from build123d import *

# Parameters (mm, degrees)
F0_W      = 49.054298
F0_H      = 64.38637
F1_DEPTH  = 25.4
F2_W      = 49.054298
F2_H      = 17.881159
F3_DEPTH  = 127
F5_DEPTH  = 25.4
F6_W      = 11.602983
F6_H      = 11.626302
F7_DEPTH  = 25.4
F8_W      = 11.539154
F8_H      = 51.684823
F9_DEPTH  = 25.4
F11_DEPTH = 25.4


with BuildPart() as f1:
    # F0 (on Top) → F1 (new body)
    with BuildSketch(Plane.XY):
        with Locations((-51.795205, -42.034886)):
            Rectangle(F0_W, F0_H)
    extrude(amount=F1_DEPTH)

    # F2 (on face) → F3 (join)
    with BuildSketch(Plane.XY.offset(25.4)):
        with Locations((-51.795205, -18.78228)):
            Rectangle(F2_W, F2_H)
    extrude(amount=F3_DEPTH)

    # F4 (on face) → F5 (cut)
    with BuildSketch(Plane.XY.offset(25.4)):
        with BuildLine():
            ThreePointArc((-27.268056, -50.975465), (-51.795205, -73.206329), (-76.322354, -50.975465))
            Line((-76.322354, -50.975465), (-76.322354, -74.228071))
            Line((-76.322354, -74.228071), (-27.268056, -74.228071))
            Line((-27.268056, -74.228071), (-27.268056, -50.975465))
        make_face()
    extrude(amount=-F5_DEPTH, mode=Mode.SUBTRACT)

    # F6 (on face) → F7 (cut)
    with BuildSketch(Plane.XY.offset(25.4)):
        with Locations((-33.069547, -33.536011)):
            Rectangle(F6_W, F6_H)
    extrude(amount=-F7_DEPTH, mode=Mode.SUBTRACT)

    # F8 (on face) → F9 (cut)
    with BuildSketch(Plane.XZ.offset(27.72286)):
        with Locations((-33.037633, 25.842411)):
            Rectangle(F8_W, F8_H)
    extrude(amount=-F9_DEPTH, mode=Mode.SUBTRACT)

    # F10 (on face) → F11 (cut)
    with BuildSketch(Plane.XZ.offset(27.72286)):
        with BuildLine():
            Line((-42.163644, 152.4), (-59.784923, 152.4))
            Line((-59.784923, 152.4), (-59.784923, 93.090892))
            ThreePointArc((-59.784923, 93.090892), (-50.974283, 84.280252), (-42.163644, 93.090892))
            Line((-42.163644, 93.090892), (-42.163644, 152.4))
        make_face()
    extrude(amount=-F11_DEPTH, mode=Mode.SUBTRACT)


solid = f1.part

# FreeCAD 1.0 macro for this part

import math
import FreeCAD as App
import Part
import Sketcher
Q = App.Units.Quantity


def add_polygon(sketch, points):
    """Adds a closed chain of lines whose ends are joined by coincident constraints."""
    first, n = sketch.GeometryCount, len(points)
    for a, b in zip(points, points[1:] + points[:1]):
        sketch.addGeometry(Part.LineSegment(App.Vector(*a, 0), App.Vector(*b, 0)), False)
    for i in range(n):
        sketch.addConstraint(Sketcher.Constraint("Coincident", first + i, 2, first + (i + 1) % n, 1))

doc = App.newDocument("Part")
body = doc.addObject("PartDesign::Body", "Body")

# Sketch on XY plane
sketch1 = body.newObject("Sketcher::SketchObject", "Sketch")
sketch1.AttachmentSupport = (doc.getObject("XY_Plane"), [""])
sketch1.MapMode = "FlatFace"
add_polygon(sketch1, [(-76.322354, -9.841701), (-76.322354, -74.228071), (-27.268056, -74.228071), (-27.268056, -9.841701)])  # lines 0-3
sketch1.addConstraint([
    Sketcher.Constraint("Vertical", 0),
    Sketcher.Constraint("Horizontal", 1),
    Sketcher.Constraint("Vertical", 2),
    Sketcher.Constraint("Horizontal", 3),
    Sketcher.Constraint("DistanceX", 1, 1, 1, 2, Q("49.054298 mm")),
    Sketcher.Constraint("DistanceY", 0, 2, 0, 1, Q("64.38637 mm")),
    Sketcher.Constraint("DistanceY", 2, 2, -1, 1, Q("9.841701 mm")),
    Sketcher.Constraint("DistanceX", 0, 2, -1, 1, Q("76.322354 mm")),
])
pad1 = body.newObject("PartDesign::Pad", "Pad")
pad1.Profile = sketch1
pad1.Length = Q("1 in")

# Sketch on XY plane
sketch2 = body.newObject("Sketcher::SketchObject", "Sketch001")
sketch2.AttachmentSupport = (doc.getObject("XY_Plane"), [""])
sketch2.MapMode = "FlatFace"
sketch2.AttachmentOffset = App.Placement(App.Vector(0, 0, 1 * 25.4), App.Rotation())
add_polygon(sketch2, [(-76.322354, -9.8417), (-76.322354, -27.722859), (-27.268056, -27.722859), (-27.268056, -9.8417)])  # lines 0-3
sketch2.addConstraint([
    Sketcher.Constraint("Vertical", 0),
    Sketcher.Constraint("Horizontal", 1),
    Sketcher.Constraint("Vertical", 2),
    Sketcher.Constraint("Horizontal", 3),
    Sketcher.Constraint("DistanceX", 1, 1, 1, 2, Q("49.054298 mm")),
    Sketcher.Constraint("DistanceY", 0, 2, 0, 1, Q("17.881159 mm")),
    Sketcher.Constraint("DistanceY", 2, 2, -1, 1, Q("9.8417 mm")),
    Sketcher.Constraint("DistanceX", 0, 2, -1, 1, Q("76.322354 mm")),
])
pad2 = body.newObject("PartDesign::Pad", "Pad001")
pad2.Profile = sketch2
pad2.Length = Q("5 in")

# Sketch on XY plane
sketch3 = body.newObject("Sketcher::SketchObject", "Sketch002")
sketch3.AttachmentSupport = (doc.getObject("XY_Plane"), [""])
sketch3.MapMode = "FlatFace"
sketch3.AttachmentOffset = App.Placement(App.Vector(0, 0, 1 * 25.4), App.Rotation())
sketch3.addGeometry([
    Part.ArcOfCircle(Part.Circle(App.Vector(-51.795205, -48.560585, 0), App.Vector(0, 0, 1), 24.645744), math.radians(-174.376929), math.radians(-5.623071)),
    Part.LineSegment(App.Vector(-76.322354, -50.975465, 0), App.Vector(-76.322354, -74.228071, 0)),
    Part.LineSegment(App.Vector(-76.322354, -74.228071, 0), App.Vector(-27.268056, -74.228071, 0)),
    Part.LineSegment(App.Vector(-27.268056, -74.228071, 0), App.Vector(-27.268056, -50.975465, 0)),
], False)
sketch3.addConstraint([
    Sketcher.Constraint("Coincident", 0, 1, 1, 1),
    Sketcher.Constraint("Coincident", 1, 2, 2, 1),
    Sketcher.Constraint("Coincident", 2, 2, 3, 1),
    Sketcher.Constraint("Coincident", 3, 2, 0, 2),
    Sketcher.Constraint("Vertical", 1),
    Sketcher.Constraint("Horizontal", 2),
    Sketcher.Constraint("Vertical", 3),
    Sketcher.Constraint("Horizontal", 0, 1, 3, 2),
    Sketcher.Constraint("DistanceX", 2, 1, 2, 2, Q("49.054298 mm")),
    Sketcher.Constraint("Radius", 0, Q("24.645744 mm")),
    Sketcher.Constraint("DistanceY", 1, 2, 1, 1, Q("23.252606 mm")),
    Sketcher.Constraint("DistanceY", 1, 2, -1, 1, Q("74.228071 mm")),
    Sketcher.Constraint("DistanceX", 0, 3, -1, 1, Q("51.795205 mm")),
])
pocket1 = body.newObject("PartDesign::Pocket", "Pocket")
pocket1.Profile = sketch3
pocket1.Length = Q("1 in")

# Sketch on XY plane
sketch4 = body.newObject("Sketcher::SketchObject", "Sketch003")
sketch4.AttachmentSupport = (doc.getObject("XY_Plane"), [""])
sketch4.MapMode = "FlatFace"
sketch4.AttachmentOffset = App.Placement(App.Vector(0, 0, 1 * 25.4), App.Rotation())
add_polygon(sketch4, [(-38.871038, -27.72286), (-38.871038, -39.349162), (-27.268055, -39.349162), (-27.268055, -27.72286)])  # lines 0-3
sketch4.addConstraint([
    Sketcher.Constraint("Vertical", 0),
    Sketcher.Constraint("Horizontal", 1),
    Sketcher.Constraint("Vertical", 2),
    Sketcher.Constraint("Horizontal", 3),
    Sketcher.Constraint("DistanceY", 0, 2, 0, 1, Q("11.626302 mm")),
    Sketcher.Constraint("DistanceX", 1, 1, 1, 2, Q("11.602983 mm")),
    Sketcher.Constraint("DistanceX", 0, 2, -1, 1, Q("38.871038 mm")),
    Sketcher.Constraint("DistanceY", 2, 2, -1, 1, Q("27.72286 mm")),
])
pocket2 = body.newObject("PartDesign::Pocket", "Pocket001")
pocket2.Profile = sketch4
pocket2.Length = Q("1 in")

# Sketch on XZ plane
sketch5 = body.newObject("Sketcher::SketchObject", "Sketch004")
sketch5.AttachmentSupport = (doc.getObject("XZ_Plane"), [""])
sketch5.MapMode = "FlatFace"
sketch5.AttachmentOffset = App.Placement(App.Vector(0, 0, 27.72286), App.Rotation())
add_polygon(sketch5, [(-38.80721, 51.684823), (-38.80721, 0), (-27.268056, 0), (-27.268056, 51.684823)])  # lines 0-3
sketch5.addConstraint([
    Sketcher.Constraint("Vertical", 0),
    Sketcher.Constraint("Horizontal", 1),
    Sketcher.Constraint("Vertical", 2),
    Sketcher.Constraint("Horizontal", 3),
    Sketcher.Constraint("PointOnObject", 0, 2, -1),
    Sketcher.Constraint("DistanceX", 1, 1, 1, 2, Q("11.539154 mm")),
    Sketcher.Constraint("DistanceY", 0, 2, 0, 1, Q("51.684823 mm")),
    Sketcher.Constraint("DistanceX", 0, 2, -1, 1, Q("38.80721 mm")),
])
pocket3 = body.newObject("PartDesign::Pocket", "Pocket002")
pocket3.Profile = sketch5
pocket3.Length = Q("1 in")

# Sketch on XZ plane
sketch6 = body.newObject("Sketcher::SketchObject", "Sketch005")
sketch6.AttachmentSupport = (doc.getObject("XZ_Plane"), [""])
sketch6.MapMode = "FlatFace"
sketch6.AttachmentOffset = App.Placement(App.Vector(0, 0, 27.72286), App.Rotation())
sketch6.addGeometry([
    Part.LineSegment(App.Vector(-42.163644, 152.4, 0), App.Vector(-59.784923, 152.4, 0)),
    Part.LineSegment(App.Vector(-59.784923, 152.4, 0), App.Vector(-59.784923, 93.090892, 0)),
    Part.ArcOfCircle(Part.Circle(App.Vector(-50.974283, 93.090891, 0), App.Vector(0, 0, 1), 8.81064), math.radians(179.999997), math.radians(360.000003)),
    Part.LineSegment(App.Vector(-42.163644, 93.090892, 0), App.Vector(-42.163644, 152.4, 0)),
], False)
sketch6.addConstraint([
    Sketcher.Constraint("Coincident", 0, 2, 1, 1),
    Sketcher.Constraint("Tangent", 1, 2, 2, 1),
    Sketcher.Constraint("Tangent", 2, 2, 3, 1),
    Sketcher.Constraint("Coincident", 3, 2, 0, 1),
    Sketcher.Constraint("Horizontal", 0),
    Sketcher.Constraint("Vertical", 1),
    Sketcher.Constraint("Vertical", 3),
    Sketcher.Constraint("DistanceY", -1, 1, 0, 2, Q("6 in")),
    Sketcher.Constraint("Radius", 2, Q("8.81064 mm")),
    Sketcher.Constraint("DistanceY", 1, 2, 1, 1, Q("59.309108 mm")),
    Sketcher.Constraint("DistanceX", 2, 3, -1, 1, Q("50.974283 mm")),
])
pocket4 = body.newObject("PartDesign::Pocket", "Pocket003")
pocket4.Profile = sketch6
pocket4.Length = Q("1 in")

doc.recompute()
